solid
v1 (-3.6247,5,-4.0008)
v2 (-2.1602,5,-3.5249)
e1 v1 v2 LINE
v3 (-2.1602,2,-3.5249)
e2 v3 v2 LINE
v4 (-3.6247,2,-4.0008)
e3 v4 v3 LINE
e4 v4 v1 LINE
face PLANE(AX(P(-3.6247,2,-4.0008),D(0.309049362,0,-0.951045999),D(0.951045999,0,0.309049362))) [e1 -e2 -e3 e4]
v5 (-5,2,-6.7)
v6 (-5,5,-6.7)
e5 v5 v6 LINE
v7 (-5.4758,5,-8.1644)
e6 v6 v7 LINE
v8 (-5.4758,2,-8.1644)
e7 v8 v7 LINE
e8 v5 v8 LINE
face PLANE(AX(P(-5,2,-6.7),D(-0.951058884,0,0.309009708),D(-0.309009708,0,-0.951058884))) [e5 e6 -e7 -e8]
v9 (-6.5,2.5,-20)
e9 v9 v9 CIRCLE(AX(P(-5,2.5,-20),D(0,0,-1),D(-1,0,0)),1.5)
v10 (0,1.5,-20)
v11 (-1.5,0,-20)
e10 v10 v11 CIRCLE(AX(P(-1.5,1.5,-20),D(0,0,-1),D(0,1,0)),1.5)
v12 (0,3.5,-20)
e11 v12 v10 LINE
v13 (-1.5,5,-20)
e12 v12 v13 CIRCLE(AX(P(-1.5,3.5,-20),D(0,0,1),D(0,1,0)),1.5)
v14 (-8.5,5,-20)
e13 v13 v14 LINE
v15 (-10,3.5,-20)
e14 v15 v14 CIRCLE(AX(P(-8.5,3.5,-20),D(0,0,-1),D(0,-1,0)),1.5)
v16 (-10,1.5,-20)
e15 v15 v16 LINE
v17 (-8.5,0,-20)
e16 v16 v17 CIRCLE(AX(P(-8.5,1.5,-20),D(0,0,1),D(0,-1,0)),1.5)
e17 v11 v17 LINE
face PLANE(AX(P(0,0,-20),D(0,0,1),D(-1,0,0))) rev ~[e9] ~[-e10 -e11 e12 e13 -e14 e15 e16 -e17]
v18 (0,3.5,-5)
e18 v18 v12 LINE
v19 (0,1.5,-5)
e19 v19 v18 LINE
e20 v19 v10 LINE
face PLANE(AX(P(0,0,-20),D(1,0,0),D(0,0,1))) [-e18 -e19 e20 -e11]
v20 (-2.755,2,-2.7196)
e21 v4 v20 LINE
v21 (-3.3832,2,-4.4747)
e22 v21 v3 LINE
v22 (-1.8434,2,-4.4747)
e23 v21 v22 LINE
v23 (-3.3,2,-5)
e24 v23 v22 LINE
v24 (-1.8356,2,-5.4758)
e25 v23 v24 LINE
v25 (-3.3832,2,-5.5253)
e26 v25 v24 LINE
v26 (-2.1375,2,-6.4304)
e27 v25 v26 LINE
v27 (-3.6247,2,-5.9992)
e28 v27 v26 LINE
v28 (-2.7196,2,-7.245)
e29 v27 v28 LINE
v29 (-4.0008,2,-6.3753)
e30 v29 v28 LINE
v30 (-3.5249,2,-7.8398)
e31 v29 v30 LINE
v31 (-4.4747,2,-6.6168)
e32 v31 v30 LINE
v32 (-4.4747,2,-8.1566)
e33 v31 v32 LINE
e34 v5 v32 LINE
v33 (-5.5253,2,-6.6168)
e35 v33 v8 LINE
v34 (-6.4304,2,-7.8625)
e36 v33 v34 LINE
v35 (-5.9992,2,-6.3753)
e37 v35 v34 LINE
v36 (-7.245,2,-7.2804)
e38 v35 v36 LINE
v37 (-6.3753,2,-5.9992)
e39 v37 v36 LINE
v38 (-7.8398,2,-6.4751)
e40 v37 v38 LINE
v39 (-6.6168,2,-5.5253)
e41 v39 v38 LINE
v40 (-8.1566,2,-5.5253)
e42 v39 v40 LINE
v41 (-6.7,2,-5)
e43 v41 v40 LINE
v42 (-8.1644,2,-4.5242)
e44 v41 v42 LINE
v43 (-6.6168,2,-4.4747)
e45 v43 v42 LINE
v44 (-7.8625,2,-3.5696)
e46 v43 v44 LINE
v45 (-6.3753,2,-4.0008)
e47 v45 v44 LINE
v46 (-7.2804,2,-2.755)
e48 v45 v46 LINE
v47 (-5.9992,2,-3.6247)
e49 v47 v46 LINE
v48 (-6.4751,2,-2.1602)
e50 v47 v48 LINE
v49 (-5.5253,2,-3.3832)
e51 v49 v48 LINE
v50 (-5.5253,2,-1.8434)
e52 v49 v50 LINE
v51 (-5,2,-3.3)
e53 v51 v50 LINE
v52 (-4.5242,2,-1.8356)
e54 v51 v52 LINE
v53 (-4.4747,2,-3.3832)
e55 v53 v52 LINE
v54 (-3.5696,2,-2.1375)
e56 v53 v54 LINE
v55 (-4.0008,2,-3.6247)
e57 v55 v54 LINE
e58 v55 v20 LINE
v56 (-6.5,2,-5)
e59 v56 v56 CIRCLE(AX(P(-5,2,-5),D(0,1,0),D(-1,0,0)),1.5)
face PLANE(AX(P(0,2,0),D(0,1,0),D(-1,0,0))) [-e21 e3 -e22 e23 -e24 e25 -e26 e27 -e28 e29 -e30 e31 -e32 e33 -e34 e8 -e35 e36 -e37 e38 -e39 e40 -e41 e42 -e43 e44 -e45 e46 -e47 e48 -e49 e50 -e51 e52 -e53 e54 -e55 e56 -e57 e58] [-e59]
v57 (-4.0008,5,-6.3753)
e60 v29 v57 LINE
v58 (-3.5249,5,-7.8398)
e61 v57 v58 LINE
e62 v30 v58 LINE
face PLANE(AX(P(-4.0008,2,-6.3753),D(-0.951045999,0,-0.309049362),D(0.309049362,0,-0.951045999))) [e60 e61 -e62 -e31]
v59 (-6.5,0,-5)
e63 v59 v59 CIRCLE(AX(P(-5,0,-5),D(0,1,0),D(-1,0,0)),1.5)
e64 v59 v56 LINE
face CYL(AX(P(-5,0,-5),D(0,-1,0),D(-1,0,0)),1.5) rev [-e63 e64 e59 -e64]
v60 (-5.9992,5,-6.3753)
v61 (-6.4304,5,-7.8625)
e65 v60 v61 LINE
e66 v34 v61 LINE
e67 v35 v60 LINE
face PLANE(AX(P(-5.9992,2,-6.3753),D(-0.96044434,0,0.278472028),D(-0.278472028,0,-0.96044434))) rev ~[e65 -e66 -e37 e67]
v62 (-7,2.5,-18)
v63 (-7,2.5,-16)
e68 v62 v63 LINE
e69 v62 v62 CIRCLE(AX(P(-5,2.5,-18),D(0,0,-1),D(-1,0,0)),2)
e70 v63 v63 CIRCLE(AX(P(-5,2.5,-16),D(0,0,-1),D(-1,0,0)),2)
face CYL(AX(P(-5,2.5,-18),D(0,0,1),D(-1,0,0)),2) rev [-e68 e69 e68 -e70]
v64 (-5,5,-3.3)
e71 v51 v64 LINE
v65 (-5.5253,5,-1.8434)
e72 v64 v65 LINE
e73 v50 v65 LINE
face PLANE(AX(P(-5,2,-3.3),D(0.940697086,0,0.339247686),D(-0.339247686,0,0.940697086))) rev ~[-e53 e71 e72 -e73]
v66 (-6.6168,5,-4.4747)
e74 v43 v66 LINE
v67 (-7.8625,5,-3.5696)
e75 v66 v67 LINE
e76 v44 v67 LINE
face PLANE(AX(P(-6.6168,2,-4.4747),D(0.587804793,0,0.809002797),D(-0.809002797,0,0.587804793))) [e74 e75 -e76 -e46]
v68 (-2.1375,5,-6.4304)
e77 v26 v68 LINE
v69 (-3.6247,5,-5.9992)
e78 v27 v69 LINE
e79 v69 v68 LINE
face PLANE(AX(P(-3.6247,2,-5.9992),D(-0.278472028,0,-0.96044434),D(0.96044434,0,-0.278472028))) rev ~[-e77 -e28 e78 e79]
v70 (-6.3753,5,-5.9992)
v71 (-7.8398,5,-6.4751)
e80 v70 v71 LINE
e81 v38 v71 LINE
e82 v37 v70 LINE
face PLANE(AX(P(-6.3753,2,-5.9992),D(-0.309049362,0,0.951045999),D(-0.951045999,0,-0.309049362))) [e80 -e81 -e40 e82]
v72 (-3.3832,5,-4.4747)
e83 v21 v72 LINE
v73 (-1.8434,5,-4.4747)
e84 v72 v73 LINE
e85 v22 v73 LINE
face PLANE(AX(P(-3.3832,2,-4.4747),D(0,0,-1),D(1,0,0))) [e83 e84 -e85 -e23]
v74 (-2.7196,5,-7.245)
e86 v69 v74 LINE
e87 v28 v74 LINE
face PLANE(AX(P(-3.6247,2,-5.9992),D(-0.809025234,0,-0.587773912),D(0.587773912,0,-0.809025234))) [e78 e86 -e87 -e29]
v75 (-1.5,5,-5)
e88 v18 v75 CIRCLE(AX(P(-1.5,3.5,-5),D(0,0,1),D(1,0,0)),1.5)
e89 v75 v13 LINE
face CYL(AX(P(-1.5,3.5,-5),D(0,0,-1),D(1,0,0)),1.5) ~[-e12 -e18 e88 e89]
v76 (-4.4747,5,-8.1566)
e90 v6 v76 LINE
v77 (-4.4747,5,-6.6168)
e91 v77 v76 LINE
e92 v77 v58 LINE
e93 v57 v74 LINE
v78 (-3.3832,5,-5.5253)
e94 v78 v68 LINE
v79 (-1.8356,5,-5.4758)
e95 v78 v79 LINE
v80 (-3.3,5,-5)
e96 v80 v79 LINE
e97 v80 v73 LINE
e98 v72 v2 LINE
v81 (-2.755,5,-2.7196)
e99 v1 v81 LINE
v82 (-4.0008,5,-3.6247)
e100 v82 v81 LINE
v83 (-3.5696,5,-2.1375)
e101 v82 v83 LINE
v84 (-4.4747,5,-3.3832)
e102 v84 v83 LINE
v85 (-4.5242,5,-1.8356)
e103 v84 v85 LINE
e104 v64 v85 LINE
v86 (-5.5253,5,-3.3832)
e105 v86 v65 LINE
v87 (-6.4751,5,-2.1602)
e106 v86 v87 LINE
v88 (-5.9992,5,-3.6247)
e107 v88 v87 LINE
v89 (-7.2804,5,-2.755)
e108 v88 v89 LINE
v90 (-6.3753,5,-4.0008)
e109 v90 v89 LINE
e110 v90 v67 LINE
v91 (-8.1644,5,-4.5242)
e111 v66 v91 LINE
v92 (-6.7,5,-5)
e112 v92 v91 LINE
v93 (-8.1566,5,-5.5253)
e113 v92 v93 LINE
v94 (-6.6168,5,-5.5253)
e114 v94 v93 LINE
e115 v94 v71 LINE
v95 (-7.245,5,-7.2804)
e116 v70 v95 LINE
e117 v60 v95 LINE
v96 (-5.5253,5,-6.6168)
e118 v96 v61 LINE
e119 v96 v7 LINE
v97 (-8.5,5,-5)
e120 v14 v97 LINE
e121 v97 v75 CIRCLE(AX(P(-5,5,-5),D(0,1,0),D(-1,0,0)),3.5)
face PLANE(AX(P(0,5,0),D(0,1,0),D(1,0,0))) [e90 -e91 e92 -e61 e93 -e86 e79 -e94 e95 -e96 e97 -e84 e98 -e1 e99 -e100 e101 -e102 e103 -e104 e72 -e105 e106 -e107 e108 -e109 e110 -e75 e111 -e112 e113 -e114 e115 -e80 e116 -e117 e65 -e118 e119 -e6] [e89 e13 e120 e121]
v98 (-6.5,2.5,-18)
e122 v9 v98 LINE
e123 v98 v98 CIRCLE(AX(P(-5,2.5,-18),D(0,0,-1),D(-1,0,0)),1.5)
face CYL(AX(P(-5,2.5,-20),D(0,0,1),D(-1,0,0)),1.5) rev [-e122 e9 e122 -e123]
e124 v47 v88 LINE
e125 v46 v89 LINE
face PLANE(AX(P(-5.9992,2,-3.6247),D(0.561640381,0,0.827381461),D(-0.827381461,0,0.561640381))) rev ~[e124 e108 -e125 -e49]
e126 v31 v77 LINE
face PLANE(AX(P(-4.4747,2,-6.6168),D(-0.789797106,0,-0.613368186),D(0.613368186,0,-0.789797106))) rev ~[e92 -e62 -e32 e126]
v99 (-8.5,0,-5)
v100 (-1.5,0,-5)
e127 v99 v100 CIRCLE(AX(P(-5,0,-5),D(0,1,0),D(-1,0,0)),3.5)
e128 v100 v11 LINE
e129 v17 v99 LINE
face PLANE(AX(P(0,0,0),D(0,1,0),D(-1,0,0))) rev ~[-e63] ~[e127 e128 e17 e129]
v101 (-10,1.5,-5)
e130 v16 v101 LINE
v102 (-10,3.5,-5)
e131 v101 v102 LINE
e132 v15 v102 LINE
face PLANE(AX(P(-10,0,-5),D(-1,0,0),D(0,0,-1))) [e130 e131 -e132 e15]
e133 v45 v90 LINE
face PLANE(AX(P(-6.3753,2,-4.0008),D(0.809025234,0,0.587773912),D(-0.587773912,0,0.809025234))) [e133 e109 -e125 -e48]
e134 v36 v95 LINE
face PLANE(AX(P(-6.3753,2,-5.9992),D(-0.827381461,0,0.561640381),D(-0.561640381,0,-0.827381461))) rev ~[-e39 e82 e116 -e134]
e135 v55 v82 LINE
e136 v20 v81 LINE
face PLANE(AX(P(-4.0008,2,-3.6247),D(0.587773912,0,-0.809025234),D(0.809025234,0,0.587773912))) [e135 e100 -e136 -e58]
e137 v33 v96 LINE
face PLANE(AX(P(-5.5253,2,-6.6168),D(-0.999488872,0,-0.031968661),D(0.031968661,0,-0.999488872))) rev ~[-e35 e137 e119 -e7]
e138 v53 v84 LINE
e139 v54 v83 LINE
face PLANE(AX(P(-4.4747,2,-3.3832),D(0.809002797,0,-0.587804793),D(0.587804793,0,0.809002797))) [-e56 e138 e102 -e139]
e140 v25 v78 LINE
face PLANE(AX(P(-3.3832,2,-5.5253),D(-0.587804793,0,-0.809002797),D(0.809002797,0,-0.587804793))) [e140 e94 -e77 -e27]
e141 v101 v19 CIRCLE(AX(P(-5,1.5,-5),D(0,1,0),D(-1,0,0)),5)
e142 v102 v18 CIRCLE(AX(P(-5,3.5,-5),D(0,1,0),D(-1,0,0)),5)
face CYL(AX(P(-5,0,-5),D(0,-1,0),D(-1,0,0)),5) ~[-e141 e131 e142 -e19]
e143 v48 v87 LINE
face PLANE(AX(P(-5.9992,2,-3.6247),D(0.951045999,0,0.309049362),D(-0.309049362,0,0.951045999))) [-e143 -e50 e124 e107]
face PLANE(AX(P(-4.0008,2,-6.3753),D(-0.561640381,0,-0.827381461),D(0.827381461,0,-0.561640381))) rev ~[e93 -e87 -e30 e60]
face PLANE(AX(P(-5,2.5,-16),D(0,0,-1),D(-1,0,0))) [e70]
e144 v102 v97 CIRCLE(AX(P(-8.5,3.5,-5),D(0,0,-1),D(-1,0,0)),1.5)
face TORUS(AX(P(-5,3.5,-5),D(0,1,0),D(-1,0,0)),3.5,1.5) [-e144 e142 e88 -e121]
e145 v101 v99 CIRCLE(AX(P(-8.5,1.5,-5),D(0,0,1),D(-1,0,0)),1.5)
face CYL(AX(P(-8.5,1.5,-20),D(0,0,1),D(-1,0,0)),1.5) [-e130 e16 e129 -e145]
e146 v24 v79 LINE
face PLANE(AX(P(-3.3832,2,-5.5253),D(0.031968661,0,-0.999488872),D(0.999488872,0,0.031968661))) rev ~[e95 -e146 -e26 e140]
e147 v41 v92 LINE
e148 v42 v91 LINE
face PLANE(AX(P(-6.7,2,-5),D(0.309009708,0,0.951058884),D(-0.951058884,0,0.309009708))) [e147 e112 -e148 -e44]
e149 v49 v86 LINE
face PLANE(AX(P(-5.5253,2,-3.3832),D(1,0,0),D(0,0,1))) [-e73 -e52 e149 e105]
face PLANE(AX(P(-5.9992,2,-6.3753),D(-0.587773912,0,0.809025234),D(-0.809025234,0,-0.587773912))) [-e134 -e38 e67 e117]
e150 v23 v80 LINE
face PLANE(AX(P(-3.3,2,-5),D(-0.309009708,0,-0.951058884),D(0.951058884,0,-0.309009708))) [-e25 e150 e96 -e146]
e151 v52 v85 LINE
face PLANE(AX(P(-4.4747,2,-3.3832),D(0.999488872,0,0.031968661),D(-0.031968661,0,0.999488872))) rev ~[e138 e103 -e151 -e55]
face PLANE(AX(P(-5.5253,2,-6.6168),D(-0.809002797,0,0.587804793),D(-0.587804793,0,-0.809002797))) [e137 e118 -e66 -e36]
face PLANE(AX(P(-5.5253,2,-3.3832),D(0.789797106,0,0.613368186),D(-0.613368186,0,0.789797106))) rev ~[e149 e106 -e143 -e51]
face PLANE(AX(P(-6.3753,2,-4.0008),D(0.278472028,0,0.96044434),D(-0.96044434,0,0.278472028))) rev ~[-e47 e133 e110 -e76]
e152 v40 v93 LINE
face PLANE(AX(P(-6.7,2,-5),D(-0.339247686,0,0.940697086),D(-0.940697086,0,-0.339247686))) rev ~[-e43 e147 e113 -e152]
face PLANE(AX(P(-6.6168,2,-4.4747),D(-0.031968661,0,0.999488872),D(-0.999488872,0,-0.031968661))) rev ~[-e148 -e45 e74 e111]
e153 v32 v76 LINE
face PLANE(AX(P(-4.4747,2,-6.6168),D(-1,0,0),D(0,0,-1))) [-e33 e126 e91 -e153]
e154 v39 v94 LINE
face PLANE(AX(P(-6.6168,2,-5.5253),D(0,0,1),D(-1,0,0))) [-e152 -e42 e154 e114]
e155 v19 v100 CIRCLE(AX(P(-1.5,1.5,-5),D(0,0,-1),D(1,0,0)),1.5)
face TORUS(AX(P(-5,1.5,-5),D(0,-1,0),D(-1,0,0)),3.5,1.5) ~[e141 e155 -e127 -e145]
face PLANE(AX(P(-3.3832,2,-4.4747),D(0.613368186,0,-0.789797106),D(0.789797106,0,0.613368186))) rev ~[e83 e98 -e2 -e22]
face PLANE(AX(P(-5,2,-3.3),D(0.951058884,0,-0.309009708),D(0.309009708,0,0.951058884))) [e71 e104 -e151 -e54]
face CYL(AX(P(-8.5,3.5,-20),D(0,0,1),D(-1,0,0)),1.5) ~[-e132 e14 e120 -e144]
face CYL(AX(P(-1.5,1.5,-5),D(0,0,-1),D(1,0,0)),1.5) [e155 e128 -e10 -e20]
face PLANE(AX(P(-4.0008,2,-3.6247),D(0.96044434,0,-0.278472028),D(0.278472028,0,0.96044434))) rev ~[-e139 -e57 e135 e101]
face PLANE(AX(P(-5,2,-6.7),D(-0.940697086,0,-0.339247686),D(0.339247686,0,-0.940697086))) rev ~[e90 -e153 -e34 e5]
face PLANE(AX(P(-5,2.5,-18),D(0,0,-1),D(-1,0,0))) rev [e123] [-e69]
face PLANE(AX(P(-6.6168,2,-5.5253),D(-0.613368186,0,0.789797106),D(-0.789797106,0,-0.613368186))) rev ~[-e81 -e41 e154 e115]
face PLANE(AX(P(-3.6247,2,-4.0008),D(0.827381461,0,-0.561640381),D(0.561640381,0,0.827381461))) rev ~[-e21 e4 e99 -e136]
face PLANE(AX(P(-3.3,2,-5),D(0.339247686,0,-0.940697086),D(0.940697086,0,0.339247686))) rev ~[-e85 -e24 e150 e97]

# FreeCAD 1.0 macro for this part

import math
import FreeCAD as App
import Part
import Sketcher
from FreeCAD import Vector
Q = App.Units.Quantity


def edges_at(feature, points):
    """Names of the edges that pass closest to the given points."""
    edges = feature.Shape.Edges
    near = lambda p: min(range(len(edges)), key=lambda i: edges[i].distToShape(Part.Vertex(*p))[0])
    return sorted({f"Edge{near(p) + 1}" for p in points})


def add_polygon(sketch, points):
    """Adds a closed chain of lines whose ends are joined by coincident constraints."""
    first, n = sketch.GeometryCount, len(points)
    for a, b in zip(points, points[1:] + points[:1]):
        sketch.addGeometry(Part.LineSegment(App.Vector(*a, 0), App.Vector(*b, 0)), False)
    for i in range(n):
        sketch.addConstraint(Sketcher.Constraint("Coincident", first + i, 2, first + (i + 1) % n, 1))

doc = App.newDocument("Part")
body = doc.addObject("PartDesign::Body", "Body")

# Sketch on XZ plane
sketch1 = doc.addObject("Sketcher::SketchObject", "Sketch")
body.addObject(sketch1)
sketch1.AttachmentSupport = (doc.XZ_Plane, [""])
sketch1.MapMode = "FlatFace"
sketch1.addGeometry([
    Part.LineSegment(Vector(-10, -20, 0), Vector(-10, -5, 0)),  # 0
    Part.ArcOfCircle(Part.Circle(Vector(-5, -5, 0), Vector(0, 0, 1), 5), math.radians(0), math.radians(180)),  # 1
    Part.LineSegment(Vector(0, -5, 0), Vector(0, -20, 0)),  # 2
    Part.LineSegment(Vector(0, -20, 0), Vector(-10, -20, 0)),  # 3
    Part.Circle(Vector(-5, -5, 0), Vector(0, 0, 1), 1.5),  # 4
], False)
sketch1.addConstraint([
    Sketcher.Constraint("Tangent", 0, 2, 1, 2),
    Sketcher.Constraint("Tangent", 1, 1, 2, 1),
    Sketcher.Constraint("Coincident", 2, 2, 3, 1),
    Sketcher.Constraint("Coincident", 3, 2, 0, 1),
    Sketcher.Constraint("Vertical", 0),
    Sketcher.Constraint("Vertical", 2),
    Sketcher.Constraint("Horizontal", 3),
    Sketcher.Constraint("Coincident", 4, 3, 1, 3),
    Sketcher.Constraint("PointOnObject", 1, 1, -2),
    Sketcher.Constraint("Diameter", 4, Q("3 mm")),
    Sketcher.Constraint("Radius", 1, Q("5 mm")),
    Sketcher.Constraint("DistanceY", 2, 2, -1, 1, Q("20 mm")),
    Sketcher.Constraint("DistanceY", 0, 1, 0, 2, Q("15 mm")),
])
pad1 = doc.addObject("PartDesign::Pad", "Pad")
body.addObject(pad1)
pad1.Profile = sketch1
pad1.Length = 2
pad1.Reversed = True

# Sketch on XZ plane
sketch2 = doc.addObject("Sketcher::SketchObject", "Sketch001")
body.addObject(sketch2)
sketch2.AttachmentSupport = (doc.XZ_Plane, [""])
sketch2.MapMode = "FlatFace"
sketch2.AttachmentOffset = App.Placement(Vector(0, 0, -2), App.Rotation())
sketch2.addGeometry(Part.LineSegment(Vector(0, -20, 0), Vector(-10, -20, 0)), False)  # 0
sketch2.addGeometry(Part.LineSegment(Vector(-10, -20, 0), Vector(-10, -5, 0)), False)  # 1
sketch2.addGeometry(Part.ArcOfCircle(Part.Circle(Vector(-5, -5, 0), Vector(0, 0, 1), 5), math.radians(0), math.radians(180)), False)  # 2
sketch2.addGeometry(Part.LineSegment(Vector(0, -5, 0), Vector(0, -20, 0)), False)  # 3
add_polygon(sketch2, [(-4.5, -1.8), (-5, -3.3), (-5.5, -1.8), (-5.5, -3.4), (-6.5, -2.2), (-6, -3.6), (-7.3, -2.8), (-6.4, -4), (-7.9, -3.6), (-6.6, -4.5), (-8.2, -4.5), (-6.7, -5), (-8.2, -5.5), (-6.6, -5.5), (-7.8, -6.5), (-6.4, -6), (-7.2, -7.3), (-6, -6.4), (-6.4, -7.9), (-5.5, -6.6), (-5.5, -8.2), (-5, -6.7), (-4.5, -8.2), (-4.5, -6.6), (-3.5, -7.8), (-4, -6.4), (-2.7, -7.2), (-3.6, -6), (-2.1, -6.4), (-3.4, -5.5), (-1.8, -5.5), (-3.3, -5), (-1.8, -4.5), (-3.4, -4.5), (-2.2, -3.5), (-3.6, -4), (-2.8, -2.7), (-4, -3.6), (-3.6, -2.1), (-4.5, -3.4)])  # lines 4-43
sketch2.addConstraint([
    Sketcher.Constraint("Coincident", 0, 2, 1, 1),
    Sketcher.Constraint("Tangent", 1, 2, 2, 2),
    Sketcher.Constraint("Tangent", 2, 1, 3, 1),
    Sketcher.Constraint("Coincident", 3, 2, 0, 1),
    Sketcher.Constraint("Horizontal", 0),
    Sketcher.Constraint("Vertical", 1),
    Sketcher.Constraint("Vertical", 3),
    Sketcher.Constraint("Vertical", 6),
    Sketcher.Constraint("Horizontal", 16),
    Sketcher.Constraint("Vertical", 26),
    Sketcher.Constraint("Horizontal", 36),
    Sketcher.Constraint("PointOnObject", 2, 1, -2),
    Sketcher.Constraint("Perpendicular", 4, 14),
    Sketcher.Constraint("Perpendicular", 5, 15),
    Sketcher.Constraint("Perpendicular", 7, 17),
    Sketcher.Constraint("Perpendicular", 8, 18),
    Sketcher.Constraint("Perpendicular", 9, 19),
    Sketcher.Constraint("Perpendicular", 10, 20),
    Sketcher.Constraint("Perpendicular", 11, 21),
    Sketcher.Constraint("Perpendicular", 12, 22),
    Sketcher.Constraint("Perpendicular", 13, 23),
    Sketcher.Constraint("Perpendicular", 14, 24),
    Sketcher.Constraint("Perpendicular", 15, 25),
    Sketcher.Constraint("Perpendicular", 17, 27),
    Sketcher.Constraint("Perpendicular", 18, 28),
    Sketcher.Constraint("Perpendicular", 19, 29),
    Sketcher.Constraint("Perpendicular", 20, 30),
    Sketcher.Constraint("Perpendicular", 21, 31),
    Sketcher.Constraint("Perpendicular", 22, 32),
    Sketcher.Constraint("Perpendicular", 23, 33),
    Sketcher.Constraint("Perpendicular", 24, 34),
    Sketcher.Constraint("Perpendicular", 25, 35),
    Sketcher.Constraint("Perpendicular", 27, 37),
    Sketcher.Constraint("Perpendicular", 28, 38),
    Sketcher.Constraint("Perpendicular", 29, 39),
    Sketcher.Constraint("Perpendicular", 30, 40),
    Sketcher.Constraint("Perpendicular", 31, 41),
    Sketcher.Constraint("Perpendicular", 32, 42),
    Sketcher.Constraint("Perpendicular", 33, 43),
    Sketcher.Constraint("Horizontal", 2, 1, 14, 2),
    Sketcher.Constraint("Horizontal", 22, 2, 26, 2),
    Sketcher.Constraint("Horizontal", 20, 2, 28, 2),
    Sketcher.Constraint("Horizontal", 18, 2, 30, 2),
    Sketcher.Constraint("Horizontal", 16, 2, 32, 2),
    Sketcher.Constraint("Horizontal", 14, 2, 34, 2),
    Sketcher.Constraint("Horizontal", 12, 2, 35, 2),
    Sketcher.Constraint("Horizontal", 10, 2, 38, 2),
    Sketcher.Constraint("Horizontal", 8, 2, 40, 2),
    Sketcher.Constraint("Horizontal", 6, 2, 42, 2),
    Sketcher.Constraint("Vertical", 2, 3, 4, 2),
    Sketcher.Constraint("Vertical", 12, 2, 16, 2),
    Sketcher.Constraint("Vertical", 10, 2, 18, 2),
    Sketcher.Constraint("Vertical", 8, 2, 20, 2),
    Sketcher.Constraint("Vertical", 6, 2, 22, 2),
    Sketcher.Constraint("Vertical", 4, 2, 24, 2),
    Sketcher.Constraint("Vertical", 32, 2, 36, 2),
    Sketcher.Constraint("Vertical", 30, 2, 38, 2),
    Sketcher.Constraint("Vertical", 28, 2, 40, 2),
    Sketcher.Constraint("Vertical", 26, 2, 42, 2),
    Sketcher.Constraint("Equal", 16, 36),
    Sketcher.Constraint("Equal", 36, 6),
    Sketcher.Constraint("Equal", 6, 26),
    Sketcher.Constraint("Equal", 5, 7),
    Sketcher.Constraint("Equal", 4, 8),
    Sketcher.Constraint("Equal", 7, 9),
    Sketcher.Constraint("Equal", 8, 10),
    Sketcher.Constraint("Equal", 9, 11),
    Sketcher.Constraint("Equal", 10, 12),
    Sketcher.Constraint("Equal", 11, 13),
    Sketcher.Constraint("Equal", 12, 14),
    Sketcher.Constraint("Equal", 13, 15),
    Sketcher.Constraint("Equal", 15, 17),
    Sketcher.Constraint("Equal", 14, 18),
    Sketcher.Constraint("Equal", 17, 19),
    Sketcher.Constraint("Equal", 18, 20),
    Sketcher.Constraint("Equal", 19, 21),
    Sketcher.Constraint("Equal", 20, 22),
    Sketcher.Constraint("Equal", 21, 23),
    Sketcher.Constraint("Equal", 25, 27),
    Sketcher.Constraint("Equal", 27, 29),
    Sketcher.Constraint("Equal", 29, 31),
    Sketcher.Constraint("Angle", 14, Q("-17.9996 deg")),
    Sketcher.Constraint("Radius", 2, Q("5 mm")),
    Sketcher.Constraint("DistanceY", 1, 1, 1, 2, Q("15 mm")),
    Sketcher.Constraint("Angle", 10, Q("-54.0008 deg")),
    Sketcher.Constraint("DistanceY", 2, 3, -1, 1, Q("5 mm")),
    Sketcher.Constraint("DistanceY", 4, 2, -1, 1, Q("3.3 mm")),
    Sketcher.Constraint("Angle", 5, Q("109.831 deg")),
    Sketcher.Constraint("Angle", 9, Q("145.8307 deg")),
    Sketcher.Constraint("Angle", 11, Q("163.831 deg")),
    Sketcher.Constraint("Distance", 8, Q("1.54 mm")),
])
pad2 = doc.addObject("PartDesign::Pad", "Pad001")
body.addObject(pad2)
pad2.Profile = sketch2
pad2.Length = 3
pad2.Reversed = True

# Sketch on XZ plane
sketch3 = doc.addObject("Sketcher::SketchObject", "Sketch002")
body.addObject(sketch3)
sketch3.AttachmentSupport = (doc.XZ_Plane, [""])
sketch3.MapMode = "FlatFace"
sketch3.AttachmentOffset = App.Placement(Vector(0, 0, -2.5), App.Rotation())
add_polygon(sketch3, [(-5, -20), (-6.5, -20), (-6.5, -18), (-7, -18), (-7, -16), (-5, -16)])  # lines 0-5
sketch3.addGeometry(Part.LineSegment(Vector(-5, -16, 0), Vector(-5, -20, 0)), True)  # axis
sketch3.addConstraint([
    Sketcher.Constraint("Horizontal", 0),
    Sketcher.Constraint("Vertical", 1),
    Sketcher.Constraint("Horizontal", 2),
    Sketcher.Constraint("Vertical", 3),
    Sketcher.Constraint("Horizontal", 4),
    Sketcher.Constraint("Vertical", 5),
    Sketcher.Constraint("Vertical", 6),
    Sketcher.Constraint("Coincident", 6, 1, 4, 2),
    Sketcher.Constraint("Horizontal", 0, 2, 6, 2),
    Sketcher.Constraint("Equal", 4, 1),
    Sketcher.Constraint("Equal", 1, 3),
    Sketcher.Constraint("DistanceX", 4, 1, 4, 2, Q("2 mm")),
    Sketcher.Constraint("DistanceX", 0, 2, 0, 1, Q("1.5 mm")),
    Sketcher.Constraint("DistanceY", 0, 2, -1, 1, Q("20 mm")),
    Sketcher.Constraint("DistanceX", 2, 2, -1, 1, Q("7 mm")),
])
groove = doc.addObject("PartDesign::Groove", "Groove")
body.addObject(groove)
groove.Profile = sketch3
groove.ReferenceAxis = (sketch3, ["Axis0"])
groove.Angle = 360
doc.recompute()

fillet = doc.addObject("PartDesign::Fillet", "Fillet")
body.addObject(fillet)
fillet.Base = (groove, edges_at(groove, [
    (-5, 5, 0),
    (0, 5, -12.5),
    (-10, 5, -12.5),
    (-5, 0, 0),
    (0, 0, -12.5),
    (-10, 0, -12.5),
]))
fillet.Radius = 1.5

doc.recompute()
